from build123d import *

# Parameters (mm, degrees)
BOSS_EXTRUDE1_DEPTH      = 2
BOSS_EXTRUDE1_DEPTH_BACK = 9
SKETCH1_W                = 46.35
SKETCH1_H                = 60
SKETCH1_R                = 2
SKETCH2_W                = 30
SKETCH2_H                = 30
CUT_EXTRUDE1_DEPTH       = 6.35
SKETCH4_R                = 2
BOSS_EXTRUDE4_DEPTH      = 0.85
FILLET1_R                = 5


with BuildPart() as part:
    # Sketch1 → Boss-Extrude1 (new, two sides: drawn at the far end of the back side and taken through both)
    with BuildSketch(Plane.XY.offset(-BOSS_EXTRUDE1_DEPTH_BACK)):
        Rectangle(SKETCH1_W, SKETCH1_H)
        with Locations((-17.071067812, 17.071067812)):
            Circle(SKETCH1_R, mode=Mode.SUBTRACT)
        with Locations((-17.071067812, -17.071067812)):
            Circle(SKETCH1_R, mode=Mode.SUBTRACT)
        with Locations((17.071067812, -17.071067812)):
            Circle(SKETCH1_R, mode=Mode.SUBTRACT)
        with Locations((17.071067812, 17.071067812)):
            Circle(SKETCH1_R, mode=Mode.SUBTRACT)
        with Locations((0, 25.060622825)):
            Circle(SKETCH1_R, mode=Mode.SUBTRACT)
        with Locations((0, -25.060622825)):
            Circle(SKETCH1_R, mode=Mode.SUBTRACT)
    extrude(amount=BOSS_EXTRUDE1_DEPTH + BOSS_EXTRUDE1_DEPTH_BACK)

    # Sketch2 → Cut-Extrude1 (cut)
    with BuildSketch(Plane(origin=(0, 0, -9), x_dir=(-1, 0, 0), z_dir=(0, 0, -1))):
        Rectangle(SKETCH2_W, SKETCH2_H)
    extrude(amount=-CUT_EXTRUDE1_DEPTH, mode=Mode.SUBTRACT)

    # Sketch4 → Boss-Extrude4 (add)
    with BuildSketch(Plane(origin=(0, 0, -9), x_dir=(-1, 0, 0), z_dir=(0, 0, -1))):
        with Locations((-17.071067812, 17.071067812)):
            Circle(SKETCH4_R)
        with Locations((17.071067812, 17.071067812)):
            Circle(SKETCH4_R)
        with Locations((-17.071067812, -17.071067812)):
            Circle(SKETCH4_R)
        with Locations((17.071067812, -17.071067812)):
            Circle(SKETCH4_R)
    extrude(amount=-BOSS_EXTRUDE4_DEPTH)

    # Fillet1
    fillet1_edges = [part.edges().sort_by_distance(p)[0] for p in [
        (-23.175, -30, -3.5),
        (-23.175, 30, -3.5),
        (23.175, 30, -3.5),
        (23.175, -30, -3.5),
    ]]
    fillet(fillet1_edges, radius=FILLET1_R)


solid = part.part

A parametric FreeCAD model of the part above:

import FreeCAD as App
import Part
import Sketcher

V = App.Vector


def edges_at(feature, points):
    """Names of the edges that pass closest to the given points."""
    edges = feature.Shape.Edges
    near = lambda p: min(range(len(edges)), key=lambda i: edges[i].distToShape(Part.Vertex(*p))[0])
    return sorted({f"Edge{near(p) + 1}" for p in points})

doc = App.newDocument("Part")
body = doc.addObject("PartDesign::Body", "Body")

# Sketch on XY plane
sketch1 = body.newObject("Sketcher::SketchObject", "Sketch")
sketch1.AttachmentSupport = (doc.getObject("XY_Plane"), [""])
sketch1.MapMode = "FlatFace"
sketch1.addGeometry([
    Part.LineSegment(V(-23.2, 30, 0), V(-23.2, -30, 0)),  # 0
    Part.LineSegment(V(-23.2, -30, 0), V(23.2, -30, 0)),  # 1
    Part.LineSegment(V(23.2, -30, 0), V(23.2, 30, 0)),  # 2
    Part.LineSegment(V(23.2, 30, 0), V(-23.2, 30, 0)),  # 3
    Part.Circle(V(-17.1, -17.1, 0), V(0, 0, 1), 2),  # 4
    Part.Circle(V(0, -25.1, 0), V(0, 0, 1), 2),  # 5
    Part.Circle(V(17.1, -17.1, 0), V(0, 0, 1), 2),  # 6
    Part.Circle(V(-17.1, 17.1, 0), V(0, 0, 1), 2),  # 7
    Part.Circle(V(0, 25.1, 0), V(0, 0, 1), 2),  # 8
    Part.Circle(V(17.1, 17.1, 0), V(0, 0, 1), 2),  # 9
], False)
sketch1.addConstraint([
    Sketcher.Constraint("Coincident", 0, 2, 1, 1),
    Sketcher.Constraint("Coincident", 1, 2, 2, 1),
    Sketcher.Constraint("Coincident", 2, 2, 3, 1),
    Sketcher.Constraint("Coincident", 3, 2, 0, 1),
    Sketcher.Constraint("Vertical", 0),
    Sketcher.Constraint("Horizontal", 1),
    Sketcher.Constraint("Vertical", 2),
    Sketcher.Constraint("Horizontal", 3),
    Sketcher.Constraint("Equal", 4, 5),
    Sketcher.Constraint("Equal", 5, 6),
    Sketcher.Constraint("Equal", 6, 7),
    Sketcher.Constraint("Equal", 7, 8),
    Sketcher.Constraint("Equal", 8, 9),
    Sketcher.Constraint("Symmetric", 6, 3, 7, 3, -1, 1),
    Sketcher.Constraint("Symmetric", 5, 3, 8, 3, -1, 1),
    Sketcher.Constraint("Symmetric", 4, 3, 9, 3, -1, 1),
    Sketcher.Constraint("Symmetric", 0, 2, 2, 2, -1, 1),
    Sketcher.Constraint("Symmetric", 4, 3, 6, 3, -2),
    Sketcher.Constraint("PointOnObject", 5, 3, -2),
    Sketcher.Constraint("Diameter", 4, 4.0),
    Sketcher.Constraint("DistanceY", 0, 2, 0, 1, 60.0),
    Sketcher.Constraint("DistanceX", 1, 1, 1, 2, 46.35),
    Sketcher.Constraint("DistanceY", 5, 3, 7, 3, 42.131691),
    Sketcher.Constraint("DistanceX", 4, 3, -1, 1, 17.071068),
    Sketcher.Constraint("DistanceY", 4, 3, -1, 1, 17.071068),
])
pad1 = body.newObject("PartDesign::Pad", "Pad")
pad1.Profile = sketch1
pad1.Type = "TwoLengths"
pad1.Length = 2
pad1.Length2 = 9

# Sketch on XY plane
sketch2 = body.newObject("Sketcher::SketchObject", "Sketch001")
sketch2.AttachmentSupport = (doc.getObject("XY_Plane"), [""])
sketch2.MapMode = "FlatFace"
sketch2.AttachmentOffset = App.Placement(V(0, 0, -9), App.Rotation())
sketch2.addGeometry([
    Part.LineSegment(V(15, 15, 0), V(15, -15, 0)),
    Part.LineSegment(V(15, -15, 0), V(-15, -15, 0)),
    Part.LineSegment(V(-15, -15, 0), V(-15, 15, 0)),
    Part.LineSegment(V(-15, 15, 0), V(15, 15, 0)),
], False)
sketch2.addConstraint([
    Sketcher.Constraint("Coincident", 0, 2, 1, 1),
    Sketcher.Constraint("Coincident", 1, 2, 2, 1),
    Sketcher.Constraint("Coincident", 2, 2, 3, 1),
    Sketcher.Constraint("Coincident", 3, 2, 0, 1),
    Sketcher.Constraint("Vertical", 0),
    Sketcher.Constraint("Horizontal", 1),
    Sketcher.Constraint("Vertical", 2),
    Sketcher.Constraint("Horizontal", 3),
    Sketcher.Constraint("Symmetric", 0, 2, 2, 2, -1, 1),
    Sketcher.Constraint("Equal", 3, 0),
    Sketcher.Constraint("DistanceX", 1, 2, 1, 1, 30.0),
])
pocket1 = body.newObject("PartDesign::Pocket", "Pocket")
pocket1.Profile = sketch2
pocket1.Length = 6.35
pocket1.Reversed = True

# Sketch on XY plane
sketch3 = body.newObject("Sketcher::SketchObject", "Sketch002")
sketch3.AttachmentSupport = (doc.getObject("XY_Plane"), [""])
sketch3.MapMode = "FlatFace"
sketch3.AttachmentOffset = App.Placement(V(0, 0, -9), App.Rotation())
sketch3.addGeometry([
    Part.Circle(V(17.1, 17.1, 0), V(0, 0, 1), 2),
    Part.Circle(V(-17.1, 17.1, 0), V(0, 0, 1), 2),
    Part.Circle(V(17.1, -17.1, 0), V(0, 0, 1), 2),
    Part.Circle(V(-17.1, -17.1, 0), V(0, 0, 1), 2),
], False)
sketch3.addConstraint([
    Sketcher.Constraint("Equal", 0, 1),
    Sketcher.Constraint("Equal", 1, 2),
    Sketcher.Constraint("Equal", 2, 3),
    Sketcher.Constraint("Symmetric", 1, 3, 2, 3, -1, 1),
    Sketcher.Constraint("Symmetric", 0, 3, 3, 3, -1, 1),
    Sketcher.Constraint("Symmetric", 0, 3, 1, 3, -2),
    Sketcher.Constraint("Diameter", 0, 4.0),
    Sketcher.Constraint("DistanceX", -1, 1, 0, 3, 17.071068),
    Sketcher.Constraint("DistanceY", -1, 1, 0, 3, 17.071068),
])
pad2 = body.newObject("PartDesign::Pad", "Pad001")
pad2.Profile = sketch3
pad2.Length = 0.85
doc.recompute()

fillet = body.newObject("PartDesign::Fillet", "Fillet")
fillet.Base = (pad2, edges_at(pad2, [
    (-23.175, -30, -3.5),
    (-23.175, 30, -3.5),
    (23.175, 30, -3.5),
    (23.175, -30, -3.5),
]))
fillet.Radius = 5

doc.recompute()
